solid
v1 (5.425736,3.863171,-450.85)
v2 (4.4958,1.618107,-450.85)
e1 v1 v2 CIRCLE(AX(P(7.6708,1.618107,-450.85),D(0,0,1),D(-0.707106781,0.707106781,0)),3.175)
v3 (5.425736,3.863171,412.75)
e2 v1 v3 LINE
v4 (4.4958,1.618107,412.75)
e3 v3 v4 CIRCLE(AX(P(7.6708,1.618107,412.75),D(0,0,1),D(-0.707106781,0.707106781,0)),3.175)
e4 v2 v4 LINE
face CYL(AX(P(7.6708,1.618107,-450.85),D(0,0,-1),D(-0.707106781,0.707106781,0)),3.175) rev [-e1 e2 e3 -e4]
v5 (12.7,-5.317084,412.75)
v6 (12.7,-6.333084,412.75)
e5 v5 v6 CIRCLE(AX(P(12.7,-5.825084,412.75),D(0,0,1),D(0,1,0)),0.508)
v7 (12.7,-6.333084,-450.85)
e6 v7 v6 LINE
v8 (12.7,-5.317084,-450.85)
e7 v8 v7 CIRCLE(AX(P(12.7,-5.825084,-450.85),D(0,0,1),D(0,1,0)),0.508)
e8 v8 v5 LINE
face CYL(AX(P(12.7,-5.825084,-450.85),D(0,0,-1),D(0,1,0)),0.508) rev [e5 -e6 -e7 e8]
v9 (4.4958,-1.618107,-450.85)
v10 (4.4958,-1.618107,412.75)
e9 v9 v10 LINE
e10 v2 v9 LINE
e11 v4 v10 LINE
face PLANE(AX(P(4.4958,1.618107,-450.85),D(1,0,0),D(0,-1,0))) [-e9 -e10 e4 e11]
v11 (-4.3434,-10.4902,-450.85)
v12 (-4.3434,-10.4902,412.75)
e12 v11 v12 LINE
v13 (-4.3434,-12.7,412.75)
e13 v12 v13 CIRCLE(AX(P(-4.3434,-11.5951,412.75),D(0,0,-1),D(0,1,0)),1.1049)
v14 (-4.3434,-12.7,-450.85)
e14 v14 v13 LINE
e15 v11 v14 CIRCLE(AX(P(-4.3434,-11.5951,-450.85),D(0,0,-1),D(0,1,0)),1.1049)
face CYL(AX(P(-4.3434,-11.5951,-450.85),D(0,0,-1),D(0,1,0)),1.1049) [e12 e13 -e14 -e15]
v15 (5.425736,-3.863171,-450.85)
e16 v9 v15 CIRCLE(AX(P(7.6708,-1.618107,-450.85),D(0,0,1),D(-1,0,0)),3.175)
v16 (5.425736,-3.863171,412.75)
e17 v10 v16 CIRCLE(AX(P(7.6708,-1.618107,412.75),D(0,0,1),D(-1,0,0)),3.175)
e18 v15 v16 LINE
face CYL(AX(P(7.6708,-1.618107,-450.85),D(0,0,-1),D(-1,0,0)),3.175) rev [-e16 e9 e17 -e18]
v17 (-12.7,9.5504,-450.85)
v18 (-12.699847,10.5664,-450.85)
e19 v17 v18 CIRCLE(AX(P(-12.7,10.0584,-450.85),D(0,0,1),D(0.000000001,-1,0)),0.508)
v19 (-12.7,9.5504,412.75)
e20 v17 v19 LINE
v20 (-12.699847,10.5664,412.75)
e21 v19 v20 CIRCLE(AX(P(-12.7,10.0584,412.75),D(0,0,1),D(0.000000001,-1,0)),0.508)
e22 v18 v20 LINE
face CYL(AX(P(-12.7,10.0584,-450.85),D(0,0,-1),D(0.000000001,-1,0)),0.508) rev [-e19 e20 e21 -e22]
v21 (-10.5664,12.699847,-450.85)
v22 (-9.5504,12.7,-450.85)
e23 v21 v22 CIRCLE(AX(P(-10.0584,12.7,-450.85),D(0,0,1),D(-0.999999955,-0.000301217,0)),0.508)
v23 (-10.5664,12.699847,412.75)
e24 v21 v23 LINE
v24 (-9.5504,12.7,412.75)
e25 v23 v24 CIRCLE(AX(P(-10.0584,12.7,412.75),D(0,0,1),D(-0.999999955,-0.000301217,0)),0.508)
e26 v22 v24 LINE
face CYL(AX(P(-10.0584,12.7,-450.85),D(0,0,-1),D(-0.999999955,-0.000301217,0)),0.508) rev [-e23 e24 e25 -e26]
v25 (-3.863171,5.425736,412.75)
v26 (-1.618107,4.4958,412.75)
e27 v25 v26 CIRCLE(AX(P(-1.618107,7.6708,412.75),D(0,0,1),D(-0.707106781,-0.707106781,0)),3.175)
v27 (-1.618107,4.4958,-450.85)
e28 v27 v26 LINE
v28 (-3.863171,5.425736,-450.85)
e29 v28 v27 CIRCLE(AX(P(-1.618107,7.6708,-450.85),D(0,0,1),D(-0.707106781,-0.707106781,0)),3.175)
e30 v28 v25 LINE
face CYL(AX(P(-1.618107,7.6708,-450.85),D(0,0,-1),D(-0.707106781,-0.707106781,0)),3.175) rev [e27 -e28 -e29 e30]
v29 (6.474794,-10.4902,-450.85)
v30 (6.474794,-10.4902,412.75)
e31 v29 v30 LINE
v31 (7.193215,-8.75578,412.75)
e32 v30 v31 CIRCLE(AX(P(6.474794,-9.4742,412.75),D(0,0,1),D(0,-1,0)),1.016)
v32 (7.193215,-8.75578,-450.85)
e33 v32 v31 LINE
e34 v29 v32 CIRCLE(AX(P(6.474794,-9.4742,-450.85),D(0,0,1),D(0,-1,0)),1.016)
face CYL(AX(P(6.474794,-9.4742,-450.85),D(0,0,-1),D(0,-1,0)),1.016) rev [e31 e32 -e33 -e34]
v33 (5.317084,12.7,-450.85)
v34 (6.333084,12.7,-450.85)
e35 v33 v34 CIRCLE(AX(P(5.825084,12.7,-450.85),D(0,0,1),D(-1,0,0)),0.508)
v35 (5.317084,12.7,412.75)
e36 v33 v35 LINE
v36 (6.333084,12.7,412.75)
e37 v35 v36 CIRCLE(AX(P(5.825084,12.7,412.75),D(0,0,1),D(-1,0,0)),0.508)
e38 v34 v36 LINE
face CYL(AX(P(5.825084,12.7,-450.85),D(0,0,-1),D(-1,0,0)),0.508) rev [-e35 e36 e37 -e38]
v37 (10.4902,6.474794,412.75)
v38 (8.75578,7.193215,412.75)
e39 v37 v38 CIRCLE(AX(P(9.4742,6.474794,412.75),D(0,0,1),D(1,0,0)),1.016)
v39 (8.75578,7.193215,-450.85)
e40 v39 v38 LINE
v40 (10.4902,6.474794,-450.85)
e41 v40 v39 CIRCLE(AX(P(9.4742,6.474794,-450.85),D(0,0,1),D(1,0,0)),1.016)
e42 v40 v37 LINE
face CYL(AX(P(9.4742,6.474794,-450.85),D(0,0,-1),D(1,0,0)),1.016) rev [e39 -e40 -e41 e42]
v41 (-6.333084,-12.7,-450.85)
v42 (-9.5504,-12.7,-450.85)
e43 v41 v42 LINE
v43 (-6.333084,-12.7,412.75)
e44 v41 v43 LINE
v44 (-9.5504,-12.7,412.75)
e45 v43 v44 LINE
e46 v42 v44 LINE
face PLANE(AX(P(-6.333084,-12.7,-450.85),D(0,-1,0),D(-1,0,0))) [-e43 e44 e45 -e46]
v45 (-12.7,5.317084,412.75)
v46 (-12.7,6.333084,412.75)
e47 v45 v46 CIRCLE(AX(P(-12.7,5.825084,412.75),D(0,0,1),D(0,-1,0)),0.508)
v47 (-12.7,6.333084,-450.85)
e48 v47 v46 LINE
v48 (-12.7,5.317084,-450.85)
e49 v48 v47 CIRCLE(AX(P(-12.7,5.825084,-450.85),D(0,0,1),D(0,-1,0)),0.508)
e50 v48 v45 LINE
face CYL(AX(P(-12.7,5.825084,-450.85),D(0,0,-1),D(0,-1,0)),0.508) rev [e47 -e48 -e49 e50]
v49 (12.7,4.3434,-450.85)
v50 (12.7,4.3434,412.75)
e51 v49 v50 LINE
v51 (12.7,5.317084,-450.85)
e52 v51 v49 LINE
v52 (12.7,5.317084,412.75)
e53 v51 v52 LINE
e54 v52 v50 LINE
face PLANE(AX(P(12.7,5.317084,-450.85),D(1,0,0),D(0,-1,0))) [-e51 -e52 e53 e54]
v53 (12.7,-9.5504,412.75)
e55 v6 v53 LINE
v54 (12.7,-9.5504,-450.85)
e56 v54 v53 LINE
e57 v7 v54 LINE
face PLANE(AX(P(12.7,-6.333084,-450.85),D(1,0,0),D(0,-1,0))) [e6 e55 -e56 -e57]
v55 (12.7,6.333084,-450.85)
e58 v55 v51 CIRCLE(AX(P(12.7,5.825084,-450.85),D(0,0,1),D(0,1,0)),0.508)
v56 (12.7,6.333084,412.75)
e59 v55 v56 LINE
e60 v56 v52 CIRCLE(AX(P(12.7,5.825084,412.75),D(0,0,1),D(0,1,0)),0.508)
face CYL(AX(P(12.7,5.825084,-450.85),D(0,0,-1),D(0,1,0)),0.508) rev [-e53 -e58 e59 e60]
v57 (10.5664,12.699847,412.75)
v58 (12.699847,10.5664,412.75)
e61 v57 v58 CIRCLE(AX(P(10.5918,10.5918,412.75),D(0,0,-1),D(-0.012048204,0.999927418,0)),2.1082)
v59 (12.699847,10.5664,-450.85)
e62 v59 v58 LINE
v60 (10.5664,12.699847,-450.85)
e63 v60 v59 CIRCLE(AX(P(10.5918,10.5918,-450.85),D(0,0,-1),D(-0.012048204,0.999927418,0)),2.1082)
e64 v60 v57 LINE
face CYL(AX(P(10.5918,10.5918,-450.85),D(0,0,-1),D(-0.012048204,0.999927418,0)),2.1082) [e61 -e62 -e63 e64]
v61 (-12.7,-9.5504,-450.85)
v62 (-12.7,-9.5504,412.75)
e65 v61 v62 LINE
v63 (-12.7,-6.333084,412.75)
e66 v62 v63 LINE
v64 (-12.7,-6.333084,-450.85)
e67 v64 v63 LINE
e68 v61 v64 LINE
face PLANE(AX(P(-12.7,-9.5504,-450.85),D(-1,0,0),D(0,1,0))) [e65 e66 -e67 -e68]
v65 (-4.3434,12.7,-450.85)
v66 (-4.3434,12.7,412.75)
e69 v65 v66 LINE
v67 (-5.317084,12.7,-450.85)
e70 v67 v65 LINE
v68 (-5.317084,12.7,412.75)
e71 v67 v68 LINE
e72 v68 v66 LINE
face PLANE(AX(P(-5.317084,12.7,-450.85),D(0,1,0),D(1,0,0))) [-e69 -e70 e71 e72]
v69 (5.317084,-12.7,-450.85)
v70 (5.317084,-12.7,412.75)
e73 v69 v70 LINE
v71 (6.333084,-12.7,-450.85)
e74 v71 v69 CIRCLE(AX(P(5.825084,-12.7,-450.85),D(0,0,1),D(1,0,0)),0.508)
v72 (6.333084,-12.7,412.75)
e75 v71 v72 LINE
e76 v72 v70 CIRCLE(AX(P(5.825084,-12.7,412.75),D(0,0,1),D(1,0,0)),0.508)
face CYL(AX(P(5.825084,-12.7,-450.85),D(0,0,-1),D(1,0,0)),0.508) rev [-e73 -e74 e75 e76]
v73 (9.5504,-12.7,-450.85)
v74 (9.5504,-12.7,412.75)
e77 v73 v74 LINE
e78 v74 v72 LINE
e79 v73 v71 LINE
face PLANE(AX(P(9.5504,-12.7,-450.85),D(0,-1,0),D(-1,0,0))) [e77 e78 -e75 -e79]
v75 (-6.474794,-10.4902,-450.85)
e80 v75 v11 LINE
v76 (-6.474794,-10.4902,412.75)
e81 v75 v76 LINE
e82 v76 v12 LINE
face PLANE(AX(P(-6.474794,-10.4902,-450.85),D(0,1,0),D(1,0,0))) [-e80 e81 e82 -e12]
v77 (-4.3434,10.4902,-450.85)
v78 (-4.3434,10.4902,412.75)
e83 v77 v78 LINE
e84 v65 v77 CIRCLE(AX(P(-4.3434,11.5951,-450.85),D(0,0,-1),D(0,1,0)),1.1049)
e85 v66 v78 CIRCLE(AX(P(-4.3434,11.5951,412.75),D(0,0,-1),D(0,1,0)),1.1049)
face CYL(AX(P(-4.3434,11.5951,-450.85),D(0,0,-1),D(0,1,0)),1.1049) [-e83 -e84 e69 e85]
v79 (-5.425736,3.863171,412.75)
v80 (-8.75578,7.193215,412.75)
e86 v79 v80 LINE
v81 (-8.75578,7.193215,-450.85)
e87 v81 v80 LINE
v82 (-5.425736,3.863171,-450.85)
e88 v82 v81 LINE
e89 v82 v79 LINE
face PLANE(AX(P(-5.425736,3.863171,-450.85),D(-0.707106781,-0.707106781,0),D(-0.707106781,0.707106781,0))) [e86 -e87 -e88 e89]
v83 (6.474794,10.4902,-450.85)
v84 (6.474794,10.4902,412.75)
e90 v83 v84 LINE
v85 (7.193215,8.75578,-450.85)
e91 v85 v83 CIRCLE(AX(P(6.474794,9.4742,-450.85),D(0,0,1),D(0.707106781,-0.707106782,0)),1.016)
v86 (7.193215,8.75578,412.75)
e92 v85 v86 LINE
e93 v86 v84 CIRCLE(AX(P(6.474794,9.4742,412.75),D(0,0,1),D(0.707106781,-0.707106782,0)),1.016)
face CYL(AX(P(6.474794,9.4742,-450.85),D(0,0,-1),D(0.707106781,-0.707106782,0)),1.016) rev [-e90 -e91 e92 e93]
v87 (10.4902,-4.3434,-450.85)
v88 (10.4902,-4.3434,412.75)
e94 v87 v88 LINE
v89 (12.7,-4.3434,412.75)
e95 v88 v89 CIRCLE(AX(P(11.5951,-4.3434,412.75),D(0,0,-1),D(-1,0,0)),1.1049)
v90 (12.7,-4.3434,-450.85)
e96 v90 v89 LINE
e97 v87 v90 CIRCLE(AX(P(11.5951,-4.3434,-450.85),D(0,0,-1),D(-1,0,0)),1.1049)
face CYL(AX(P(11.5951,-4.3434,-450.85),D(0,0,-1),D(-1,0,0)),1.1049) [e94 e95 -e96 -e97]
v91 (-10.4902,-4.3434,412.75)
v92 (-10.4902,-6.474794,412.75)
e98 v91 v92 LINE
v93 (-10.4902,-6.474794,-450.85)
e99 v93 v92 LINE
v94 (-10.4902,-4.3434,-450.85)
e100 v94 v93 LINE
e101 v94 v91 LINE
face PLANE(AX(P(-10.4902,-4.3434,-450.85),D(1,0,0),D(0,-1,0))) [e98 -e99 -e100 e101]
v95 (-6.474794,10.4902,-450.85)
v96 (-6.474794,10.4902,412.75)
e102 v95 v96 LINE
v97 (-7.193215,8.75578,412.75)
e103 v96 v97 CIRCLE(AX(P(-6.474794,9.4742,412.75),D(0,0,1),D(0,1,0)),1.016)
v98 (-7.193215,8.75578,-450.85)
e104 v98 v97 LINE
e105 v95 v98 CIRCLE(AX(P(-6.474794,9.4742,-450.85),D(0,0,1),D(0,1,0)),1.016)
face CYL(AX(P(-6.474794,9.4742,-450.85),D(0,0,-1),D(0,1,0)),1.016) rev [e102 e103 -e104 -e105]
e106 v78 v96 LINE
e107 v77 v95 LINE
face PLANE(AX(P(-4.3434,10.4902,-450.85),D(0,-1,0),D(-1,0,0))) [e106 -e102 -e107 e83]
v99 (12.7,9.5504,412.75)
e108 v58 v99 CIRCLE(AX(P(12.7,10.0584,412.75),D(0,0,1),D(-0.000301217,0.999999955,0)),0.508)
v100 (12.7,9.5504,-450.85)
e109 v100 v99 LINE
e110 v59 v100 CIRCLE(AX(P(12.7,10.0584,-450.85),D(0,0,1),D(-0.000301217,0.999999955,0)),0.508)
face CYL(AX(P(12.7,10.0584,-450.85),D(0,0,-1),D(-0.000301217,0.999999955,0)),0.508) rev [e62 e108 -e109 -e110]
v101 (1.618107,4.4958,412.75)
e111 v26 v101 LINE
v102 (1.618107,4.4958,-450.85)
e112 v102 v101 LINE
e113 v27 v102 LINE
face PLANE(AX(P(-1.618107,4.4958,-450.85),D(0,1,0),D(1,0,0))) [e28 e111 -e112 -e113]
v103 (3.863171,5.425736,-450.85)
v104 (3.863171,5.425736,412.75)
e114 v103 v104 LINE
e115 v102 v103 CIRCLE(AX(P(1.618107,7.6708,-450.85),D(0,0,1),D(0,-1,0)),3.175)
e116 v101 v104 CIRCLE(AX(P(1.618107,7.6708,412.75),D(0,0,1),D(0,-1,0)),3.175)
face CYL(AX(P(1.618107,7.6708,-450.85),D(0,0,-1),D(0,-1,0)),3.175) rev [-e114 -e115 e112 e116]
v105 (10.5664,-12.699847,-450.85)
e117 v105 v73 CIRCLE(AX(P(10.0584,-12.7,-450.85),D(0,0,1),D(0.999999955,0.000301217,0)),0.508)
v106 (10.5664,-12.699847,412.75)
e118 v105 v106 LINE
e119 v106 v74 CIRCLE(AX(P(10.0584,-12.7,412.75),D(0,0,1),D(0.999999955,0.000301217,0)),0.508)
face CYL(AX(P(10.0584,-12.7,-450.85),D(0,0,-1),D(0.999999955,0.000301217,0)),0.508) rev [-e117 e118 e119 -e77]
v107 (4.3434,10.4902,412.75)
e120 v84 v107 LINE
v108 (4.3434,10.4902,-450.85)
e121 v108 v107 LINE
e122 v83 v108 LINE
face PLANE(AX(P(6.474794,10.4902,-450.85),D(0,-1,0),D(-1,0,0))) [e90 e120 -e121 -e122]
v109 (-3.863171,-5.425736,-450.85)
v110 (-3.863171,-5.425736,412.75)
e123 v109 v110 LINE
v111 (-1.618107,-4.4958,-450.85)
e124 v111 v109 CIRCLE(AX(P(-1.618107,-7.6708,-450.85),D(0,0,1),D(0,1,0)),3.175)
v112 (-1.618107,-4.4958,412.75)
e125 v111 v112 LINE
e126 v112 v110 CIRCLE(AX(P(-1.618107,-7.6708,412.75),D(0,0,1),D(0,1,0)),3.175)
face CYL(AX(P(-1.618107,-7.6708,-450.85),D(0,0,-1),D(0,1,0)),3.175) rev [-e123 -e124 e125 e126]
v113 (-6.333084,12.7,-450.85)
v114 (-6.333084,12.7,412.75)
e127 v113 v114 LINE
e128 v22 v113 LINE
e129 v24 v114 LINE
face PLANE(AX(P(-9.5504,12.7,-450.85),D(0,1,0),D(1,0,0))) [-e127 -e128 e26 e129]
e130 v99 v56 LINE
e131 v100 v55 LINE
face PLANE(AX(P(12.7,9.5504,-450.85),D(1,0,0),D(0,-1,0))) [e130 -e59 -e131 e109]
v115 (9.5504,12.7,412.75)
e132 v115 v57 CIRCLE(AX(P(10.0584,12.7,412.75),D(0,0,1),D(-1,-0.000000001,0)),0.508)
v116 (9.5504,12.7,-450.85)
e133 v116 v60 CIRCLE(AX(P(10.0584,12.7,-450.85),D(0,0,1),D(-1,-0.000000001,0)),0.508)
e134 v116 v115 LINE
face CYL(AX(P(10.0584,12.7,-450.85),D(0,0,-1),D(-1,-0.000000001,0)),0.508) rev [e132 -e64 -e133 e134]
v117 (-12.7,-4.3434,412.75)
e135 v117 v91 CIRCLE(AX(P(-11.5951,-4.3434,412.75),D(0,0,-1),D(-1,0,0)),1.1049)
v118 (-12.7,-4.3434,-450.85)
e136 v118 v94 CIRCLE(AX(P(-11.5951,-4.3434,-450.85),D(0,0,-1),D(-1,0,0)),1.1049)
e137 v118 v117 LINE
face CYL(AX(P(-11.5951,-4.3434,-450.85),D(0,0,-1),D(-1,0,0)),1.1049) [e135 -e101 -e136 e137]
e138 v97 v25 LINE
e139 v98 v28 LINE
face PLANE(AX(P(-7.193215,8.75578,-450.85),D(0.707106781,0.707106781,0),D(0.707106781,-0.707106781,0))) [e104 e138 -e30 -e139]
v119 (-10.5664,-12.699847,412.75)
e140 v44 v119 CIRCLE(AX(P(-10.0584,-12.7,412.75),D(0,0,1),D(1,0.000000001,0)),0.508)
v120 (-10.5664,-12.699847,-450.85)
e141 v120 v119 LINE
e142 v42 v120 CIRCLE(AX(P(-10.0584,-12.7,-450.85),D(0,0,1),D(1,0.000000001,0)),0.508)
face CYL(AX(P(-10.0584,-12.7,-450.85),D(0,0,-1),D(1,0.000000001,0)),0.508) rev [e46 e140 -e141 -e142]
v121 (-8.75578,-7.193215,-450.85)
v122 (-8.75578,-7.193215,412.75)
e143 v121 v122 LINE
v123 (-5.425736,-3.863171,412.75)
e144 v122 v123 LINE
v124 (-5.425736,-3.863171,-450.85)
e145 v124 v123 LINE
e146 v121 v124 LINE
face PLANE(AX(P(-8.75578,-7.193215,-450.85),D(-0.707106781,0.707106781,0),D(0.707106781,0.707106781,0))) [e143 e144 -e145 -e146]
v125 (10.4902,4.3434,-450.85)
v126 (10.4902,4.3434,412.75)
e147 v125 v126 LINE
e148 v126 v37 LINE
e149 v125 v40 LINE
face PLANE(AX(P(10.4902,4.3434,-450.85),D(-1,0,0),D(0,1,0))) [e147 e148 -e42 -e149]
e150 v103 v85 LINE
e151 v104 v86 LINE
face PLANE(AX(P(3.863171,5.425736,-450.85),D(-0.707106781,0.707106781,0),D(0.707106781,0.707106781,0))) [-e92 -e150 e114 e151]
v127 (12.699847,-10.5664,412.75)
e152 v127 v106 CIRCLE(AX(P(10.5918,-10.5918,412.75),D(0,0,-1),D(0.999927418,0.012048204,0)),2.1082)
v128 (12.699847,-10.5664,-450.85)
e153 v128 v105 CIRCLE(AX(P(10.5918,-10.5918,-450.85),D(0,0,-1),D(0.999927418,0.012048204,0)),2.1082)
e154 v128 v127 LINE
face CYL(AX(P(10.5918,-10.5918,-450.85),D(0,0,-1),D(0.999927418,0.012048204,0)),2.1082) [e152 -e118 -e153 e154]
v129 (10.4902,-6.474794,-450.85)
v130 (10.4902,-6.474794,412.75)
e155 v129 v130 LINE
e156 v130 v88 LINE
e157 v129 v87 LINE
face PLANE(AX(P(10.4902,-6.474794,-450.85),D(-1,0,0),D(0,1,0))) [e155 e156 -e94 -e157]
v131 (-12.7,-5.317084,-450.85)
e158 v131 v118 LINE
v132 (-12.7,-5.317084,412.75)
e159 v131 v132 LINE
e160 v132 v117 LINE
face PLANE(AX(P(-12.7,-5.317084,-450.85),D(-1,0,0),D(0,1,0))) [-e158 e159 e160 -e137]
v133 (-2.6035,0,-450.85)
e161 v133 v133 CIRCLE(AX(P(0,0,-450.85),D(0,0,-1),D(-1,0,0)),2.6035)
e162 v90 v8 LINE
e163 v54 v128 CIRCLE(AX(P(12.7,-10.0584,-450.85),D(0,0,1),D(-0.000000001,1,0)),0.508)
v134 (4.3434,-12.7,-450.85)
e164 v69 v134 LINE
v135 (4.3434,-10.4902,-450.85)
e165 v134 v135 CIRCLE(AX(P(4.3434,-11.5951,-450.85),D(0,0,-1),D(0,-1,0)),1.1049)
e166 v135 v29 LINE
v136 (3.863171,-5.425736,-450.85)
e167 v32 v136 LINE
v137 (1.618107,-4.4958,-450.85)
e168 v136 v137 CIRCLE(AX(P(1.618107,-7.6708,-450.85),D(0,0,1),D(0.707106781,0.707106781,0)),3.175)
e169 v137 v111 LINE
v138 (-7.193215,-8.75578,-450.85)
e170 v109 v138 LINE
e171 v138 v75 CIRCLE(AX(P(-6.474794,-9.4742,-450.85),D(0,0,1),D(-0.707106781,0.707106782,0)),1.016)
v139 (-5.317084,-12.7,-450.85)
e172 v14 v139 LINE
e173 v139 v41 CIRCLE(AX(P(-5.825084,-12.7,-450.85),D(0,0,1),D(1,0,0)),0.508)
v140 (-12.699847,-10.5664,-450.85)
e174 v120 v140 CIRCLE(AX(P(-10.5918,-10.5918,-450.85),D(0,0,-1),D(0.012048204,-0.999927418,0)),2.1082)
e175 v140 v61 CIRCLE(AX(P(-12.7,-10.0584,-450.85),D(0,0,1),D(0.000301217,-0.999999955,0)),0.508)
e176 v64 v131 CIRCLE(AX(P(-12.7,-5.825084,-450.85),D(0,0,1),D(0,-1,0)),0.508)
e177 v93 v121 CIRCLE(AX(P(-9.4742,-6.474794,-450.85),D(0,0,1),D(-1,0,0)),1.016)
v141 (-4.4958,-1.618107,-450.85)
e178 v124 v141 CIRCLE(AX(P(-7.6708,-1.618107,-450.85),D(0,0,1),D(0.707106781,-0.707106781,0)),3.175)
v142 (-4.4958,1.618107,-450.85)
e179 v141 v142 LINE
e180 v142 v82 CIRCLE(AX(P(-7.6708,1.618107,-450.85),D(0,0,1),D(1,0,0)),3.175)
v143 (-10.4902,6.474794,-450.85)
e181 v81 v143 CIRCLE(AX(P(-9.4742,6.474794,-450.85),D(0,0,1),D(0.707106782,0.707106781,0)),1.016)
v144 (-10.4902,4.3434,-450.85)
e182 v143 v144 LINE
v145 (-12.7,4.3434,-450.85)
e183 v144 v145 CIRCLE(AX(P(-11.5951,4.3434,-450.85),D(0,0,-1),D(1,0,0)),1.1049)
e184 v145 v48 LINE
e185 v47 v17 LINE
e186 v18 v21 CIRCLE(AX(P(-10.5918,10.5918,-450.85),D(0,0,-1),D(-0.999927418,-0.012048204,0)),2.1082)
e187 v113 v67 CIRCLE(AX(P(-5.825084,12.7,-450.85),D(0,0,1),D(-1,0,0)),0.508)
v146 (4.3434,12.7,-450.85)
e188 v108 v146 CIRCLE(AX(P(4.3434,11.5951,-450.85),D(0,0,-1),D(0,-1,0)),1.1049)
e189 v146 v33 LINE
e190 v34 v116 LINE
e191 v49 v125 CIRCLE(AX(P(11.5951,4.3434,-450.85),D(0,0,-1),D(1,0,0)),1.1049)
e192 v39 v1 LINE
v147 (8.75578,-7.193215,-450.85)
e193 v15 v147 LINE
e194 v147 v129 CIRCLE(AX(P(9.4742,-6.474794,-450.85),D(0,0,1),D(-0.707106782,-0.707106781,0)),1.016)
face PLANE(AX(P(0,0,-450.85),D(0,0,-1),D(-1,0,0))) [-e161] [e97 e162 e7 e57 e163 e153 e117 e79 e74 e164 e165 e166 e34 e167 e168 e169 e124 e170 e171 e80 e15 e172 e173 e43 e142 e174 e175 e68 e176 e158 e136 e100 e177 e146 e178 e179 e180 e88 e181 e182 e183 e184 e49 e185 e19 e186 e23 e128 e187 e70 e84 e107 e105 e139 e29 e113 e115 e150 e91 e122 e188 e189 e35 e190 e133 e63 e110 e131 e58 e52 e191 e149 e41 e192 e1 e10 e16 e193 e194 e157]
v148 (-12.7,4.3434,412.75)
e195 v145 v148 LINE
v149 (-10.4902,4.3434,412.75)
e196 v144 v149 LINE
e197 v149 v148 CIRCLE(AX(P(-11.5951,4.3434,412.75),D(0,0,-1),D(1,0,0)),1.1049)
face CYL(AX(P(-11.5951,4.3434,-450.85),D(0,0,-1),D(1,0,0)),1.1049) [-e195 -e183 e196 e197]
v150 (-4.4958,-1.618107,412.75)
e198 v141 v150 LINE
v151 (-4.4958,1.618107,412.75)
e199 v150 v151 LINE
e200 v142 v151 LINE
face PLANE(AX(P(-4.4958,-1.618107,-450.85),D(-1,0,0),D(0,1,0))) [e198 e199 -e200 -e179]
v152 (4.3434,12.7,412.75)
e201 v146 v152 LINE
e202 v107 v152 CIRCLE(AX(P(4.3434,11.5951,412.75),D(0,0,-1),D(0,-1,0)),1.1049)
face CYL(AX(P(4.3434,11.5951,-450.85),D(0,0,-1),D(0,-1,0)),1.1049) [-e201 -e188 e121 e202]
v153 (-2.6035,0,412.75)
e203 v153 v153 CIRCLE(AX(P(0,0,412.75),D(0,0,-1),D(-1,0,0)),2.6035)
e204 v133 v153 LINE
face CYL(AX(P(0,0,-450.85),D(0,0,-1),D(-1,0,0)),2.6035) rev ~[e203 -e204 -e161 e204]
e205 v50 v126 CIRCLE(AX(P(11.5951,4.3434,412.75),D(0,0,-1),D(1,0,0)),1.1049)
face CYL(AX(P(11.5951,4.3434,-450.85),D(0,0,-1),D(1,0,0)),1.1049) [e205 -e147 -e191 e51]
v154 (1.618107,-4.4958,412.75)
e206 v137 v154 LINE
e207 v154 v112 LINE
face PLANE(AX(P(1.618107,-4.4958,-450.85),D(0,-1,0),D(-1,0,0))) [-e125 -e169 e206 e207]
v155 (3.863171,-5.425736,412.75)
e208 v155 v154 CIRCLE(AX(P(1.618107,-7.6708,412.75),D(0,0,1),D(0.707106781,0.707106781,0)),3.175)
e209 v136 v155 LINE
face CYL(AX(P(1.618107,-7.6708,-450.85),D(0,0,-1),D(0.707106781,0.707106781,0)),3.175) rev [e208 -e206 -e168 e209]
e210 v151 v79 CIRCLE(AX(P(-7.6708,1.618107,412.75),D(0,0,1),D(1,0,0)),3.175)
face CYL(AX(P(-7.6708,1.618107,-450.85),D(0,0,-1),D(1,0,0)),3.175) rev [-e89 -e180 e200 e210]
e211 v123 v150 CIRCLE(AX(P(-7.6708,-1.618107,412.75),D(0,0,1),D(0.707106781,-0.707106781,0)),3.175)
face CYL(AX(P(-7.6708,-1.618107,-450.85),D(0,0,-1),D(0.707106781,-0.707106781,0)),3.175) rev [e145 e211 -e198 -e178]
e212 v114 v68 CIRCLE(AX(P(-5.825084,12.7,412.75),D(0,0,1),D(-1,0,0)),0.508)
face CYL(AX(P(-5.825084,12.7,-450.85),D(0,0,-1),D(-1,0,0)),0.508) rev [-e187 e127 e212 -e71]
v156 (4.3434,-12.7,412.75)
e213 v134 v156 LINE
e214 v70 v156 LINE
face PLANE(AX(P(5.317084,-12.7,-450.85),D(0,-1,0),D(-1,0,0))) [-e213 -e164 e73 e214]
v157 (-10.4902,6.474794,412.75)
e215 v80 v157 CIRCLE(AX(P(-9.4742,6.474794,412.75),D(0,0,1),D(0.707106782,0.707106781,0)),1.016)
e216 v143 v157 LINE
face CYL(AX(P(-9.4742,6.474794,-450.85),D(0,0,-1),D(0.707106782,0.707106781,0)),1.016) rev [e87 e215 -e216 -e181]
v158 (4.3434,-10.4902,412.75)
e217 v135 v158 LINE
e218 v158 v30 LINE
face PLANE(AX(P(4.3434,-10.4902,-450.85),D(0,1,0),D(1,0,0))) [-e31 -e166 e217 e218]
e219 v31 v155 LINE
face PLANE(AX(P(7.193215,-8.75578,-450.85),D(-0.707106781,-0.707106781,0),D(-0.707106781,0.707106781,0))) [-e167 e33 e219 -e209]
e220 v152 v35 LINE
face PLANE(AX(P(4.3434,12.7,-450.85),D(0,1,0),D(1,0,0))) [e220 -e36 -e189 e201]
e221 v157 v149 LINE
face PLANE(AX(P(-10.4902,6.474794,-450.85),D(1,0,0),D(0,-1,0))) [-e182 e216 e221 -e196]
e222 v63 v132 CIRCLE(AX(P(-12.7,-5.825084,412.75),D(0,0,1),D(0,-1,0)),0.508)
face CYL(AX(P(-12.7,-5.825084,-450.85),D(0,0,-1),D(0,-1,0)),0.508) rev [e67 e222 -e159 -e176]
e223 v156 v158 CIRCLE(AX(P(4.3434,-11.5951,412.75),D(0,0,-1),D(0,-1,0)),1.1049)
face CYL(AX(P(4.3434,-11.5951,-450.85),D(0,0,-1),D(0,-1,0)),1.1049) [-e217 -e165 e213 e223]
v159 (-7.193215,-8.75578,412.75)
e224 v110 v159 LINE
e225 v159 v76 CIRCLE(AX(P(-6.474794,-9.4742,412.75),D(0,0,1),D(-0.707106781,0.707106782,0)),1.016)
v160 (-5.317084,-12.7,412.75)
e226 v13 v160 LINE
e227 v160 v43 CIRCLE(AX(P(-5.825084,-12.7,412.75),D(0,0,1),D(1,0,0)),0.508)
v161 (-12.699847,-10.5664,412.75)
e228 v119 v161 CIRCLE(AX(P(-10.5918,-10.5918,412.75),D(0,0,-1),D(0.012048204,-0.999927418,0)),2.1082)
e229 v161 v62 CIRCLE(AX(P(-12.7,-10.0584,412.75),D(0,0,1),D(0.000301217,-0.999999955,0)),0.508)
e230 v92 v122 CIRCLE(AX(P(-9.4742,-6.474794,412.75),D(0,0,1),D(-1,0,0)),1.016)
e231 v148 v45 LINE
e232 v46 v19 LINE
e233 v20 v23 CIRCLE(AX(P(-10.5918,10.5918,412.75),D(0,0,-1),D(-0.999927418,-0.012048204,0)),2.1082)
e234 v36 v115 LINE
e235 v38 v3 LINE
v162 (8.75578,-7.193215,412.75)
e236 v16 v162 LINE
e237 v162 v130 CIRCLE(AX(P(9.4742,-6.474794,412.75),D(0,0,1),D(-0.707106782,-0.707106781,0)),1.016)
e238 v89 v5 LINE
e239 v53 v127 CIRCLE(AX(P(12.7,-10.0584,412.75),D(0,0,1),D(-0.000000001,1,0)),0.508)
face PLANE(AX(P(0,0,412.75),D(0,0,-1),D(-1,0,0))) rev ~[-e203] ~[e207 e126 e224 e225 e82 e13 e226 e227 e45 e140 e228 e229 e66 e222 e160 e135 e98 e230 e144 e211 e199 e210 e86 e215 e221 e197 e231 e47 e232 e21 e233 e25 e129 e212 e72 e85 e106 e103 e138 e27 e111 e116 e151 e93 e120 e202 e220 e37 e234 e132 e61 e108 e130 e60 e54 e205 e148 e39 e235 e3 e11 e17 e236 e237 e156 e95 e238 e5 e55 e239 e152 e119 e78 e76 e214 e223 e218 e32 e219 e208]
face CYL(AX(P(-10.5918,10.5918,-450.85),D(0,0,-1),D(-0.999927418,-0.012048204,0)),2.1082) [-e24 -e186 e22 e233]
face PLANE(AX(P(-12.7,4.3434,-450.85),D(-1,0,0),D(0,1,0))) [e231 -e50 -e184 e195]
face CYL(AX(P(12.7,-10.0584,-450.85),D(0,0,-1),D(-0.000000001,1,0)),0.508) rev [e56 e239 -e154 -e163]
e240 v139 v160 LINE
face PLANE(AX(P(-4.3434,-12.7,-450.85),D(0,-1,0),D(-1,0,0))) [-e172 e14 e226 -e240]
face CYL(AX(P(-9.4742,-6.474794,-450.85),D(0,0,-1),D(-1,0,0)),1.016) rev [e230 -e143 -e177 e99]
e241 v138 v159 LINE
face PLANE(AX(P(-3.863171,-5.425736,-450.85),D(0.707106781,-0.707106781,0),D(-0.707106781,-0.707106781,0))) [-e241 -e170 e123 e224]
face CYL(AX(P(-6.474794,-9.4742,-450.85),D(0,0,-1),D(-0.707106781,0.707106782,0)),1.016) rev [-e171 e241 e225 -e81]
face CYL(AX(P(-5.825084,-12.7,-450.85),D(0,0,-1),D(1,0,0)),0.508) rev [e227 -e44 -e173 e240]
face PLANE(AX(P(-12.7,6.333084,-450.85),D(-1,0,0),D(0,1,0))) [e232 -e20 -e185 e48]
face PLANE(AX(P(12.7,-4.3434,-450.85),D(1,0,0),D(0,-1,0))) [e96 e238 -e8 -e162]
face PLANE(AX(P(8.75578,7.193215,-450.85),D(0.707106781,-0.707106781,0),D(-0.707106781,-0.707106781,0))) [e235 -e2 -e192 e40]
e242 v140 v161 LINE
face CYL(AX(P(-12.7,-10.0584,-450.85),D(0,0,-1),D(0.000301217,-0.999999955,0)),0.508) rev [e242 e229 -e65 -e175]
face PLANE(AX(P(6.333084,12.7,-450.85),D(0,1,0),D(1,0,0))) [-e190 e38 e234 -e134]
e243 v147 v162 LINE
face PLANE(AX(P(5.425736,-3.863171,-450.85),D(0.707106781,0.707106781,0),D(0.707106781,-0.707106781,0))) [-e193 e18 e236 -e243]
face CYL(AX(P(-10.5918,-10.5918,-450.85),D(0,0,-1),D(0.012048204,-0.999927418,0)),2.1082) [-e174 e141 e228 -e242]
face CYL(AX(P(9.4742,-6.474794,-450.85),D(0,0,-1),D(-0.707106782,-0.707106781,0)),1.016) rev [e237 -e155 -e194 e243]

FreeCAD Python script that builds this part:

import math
import FreeCAD as App
import Part
import Sketcher
Q = App.Units.Quantity

doc = App.newDocument("Part")
body = doc.addObject("PartDesign::Body", "Body")

sketch1 = body.newObject("Sketcher::SketchObject", "Sketch")
sketch1.AttachmentSupport = (doc.getObject("XY_Plane"), [""])
sketch1.MapMode = "FlatFace"
sketch1.AttachmentOffset = App.Placement(App.Vector(0, 0, -17.75 * 25.4), App.Rotation())
sketch1.addGeometry(Part.LineSegment(App.Vector(-12.7, -9.6, 0), App.Vector(-12.7, -6.3, 0)), False)
sketch1.addGeometry(Part.ArcOfCircle(Part.Circle(App.Vector(-12.7, -5.8, 0), App.Vector(0, 0, 1), 0.5), math.radians(-90), math.radians(90)), False)
sketch1.addGeometry(Part.LineSegment(App.Vector(-12.7, -5.3, 0), App.Vector(-12.7, -4.3, 0)), False)
sketch1.addGeometry(Part.ArcOfCircle(Part.Circle(App.Vector(-11.6, -4.3, 0), App.Vector(0, 0, 1), 1.1), math.radians(0), math.radians(180)), False)
sketch1.addGeometry(Part.LineSegment(App.Vector(-10.5, -4.3, 0), App.Vector(-10.5, -6.5, 0)), False)
sketch1.addGeometry(Part.ArcOfCircle(Part.Circle(App.Vector(-9.5, -6.5, 0), App.Vector(0, 0, 1), 1), math.radians(180), math.radians(315)), False)
sketch1.addGeometry(Part.LineSegment(App.Vector(-8.8, -7.2, 0), App.Vector(-5.4, -3.9, 0)), False)
sketch1.addGeometry(Part.ArcOfCircle(Part.Circle(App.Vector(-7.7, -1.6, 0), App.Vector(0, 0, 1), 3.2), math.radians(-45), math.radians(0)), False)
sketch1.addGeometry(Part.LineSegment(App.Vector(-4.5, -1.6, 0), App.Vector(-4.5, 1.6, 0)), False)
sketch1.addGeometry(Part.ArcOfCircle(Part.Circle(App.Vector(-7.7, 1.6, 0), App.Vector(0, 0, 1), 3.2), math.radians(0), math.radians(45)), False)
sketch1.addGeometry(Part.LineSegment(App.Vector(-5.4, 3.9, 0), App.Vector(-8.8, 7.2, 0)), False)
sketch1.addGeometry(Part.ArcOfCircle(Part.Circle(App.Vector(-9.5, 6.5, 0), App.Vector(0, 0, 1), 1), math.radians(45), math.radians(180)), False)
sketch1.addGeometry(Part.LineSegment(App.Vector(-10.5, 6.5, 0), App.Vector(-10.5, 4.3, 0)), False)
sketch1.addGeometry(Part.ArcOfCircle(Part.Circle(App.Vector(-11.6, 4.3, 0), App.Vector(0, 0, 1), 1.1), math.radians(180), math.radians(360)), False)
sketch1.addGeometry(Part.LineSegment(App.Vector(-12.7, 4.3, 0), App.Vector(-12.7, 5.3, 0)), False)
sketch1.addGeometry(Part.ArcOfCircle(Part.Circle(App.Vector(-12.7, 5.8, 0), App.Vector(0, 0, 1), 0.5), math.radians(-90), math.radians(90)), False)
sketch1.addGeometry(Part.LineSegment(App.Vector(-12.7, 6.3, 0), App.Vector(-12.7, 9.6, 0)), False)
sketch1.addGeometry(Part.ArcOfCircle(Part.Circle(App.Vector(-12.7, 10.1, 0), App.Vector(0, 0, 1), 0.5), math.radians(-90), math.radians(90)), False)
sketch1.addGeometry(Part.ArcOfCircle(Part.Circle(App.Vector(-10.6, 10.6, 0), App.Vector(0, 0, 1), 2.1), math.radians(89), math.radians(181)), False)
sketch1.addGeometry(Part.ArcOfCircle(Part.Circle(App.Vector(-10.1, 12.7, 0), App.Vector(0, 0, 1), 0.5), math.radians(-180), math.radians(0)), False)
sketch1.addGeometry(Part.LineSegment(App.Vector(-9.6, 12.7, 0), App.Vector(-6.3, 12.7, 0)), False)
sketch1.addGeometry(Part.ArcOfCircle(Part.Circle(App.Vector(-5.8, 12.7, 0), App.Vector(0, 0, 1), 0.5), math.radians(180), math.radians(360)), False)
sketch1.addGeometry(Part.LineSegment(App.Vector(-5.3, 12.7, 0), App.Vector(-4.3, 12.7, 0)), False)
sketch1.addGeometry(Part.ArcOfCircle(Part.Circle(App.Vector(-4.3, 11.6, 0), App.Vector(0, 0, 1), 1.1), math.radians(-90), math.radians(90)), False)
sketch1.addGeometry(Part.LineSegment(App.Vector(-4.3, 10.5, 0), App.Vector(-6.5, 10.5, 0)), False)
sketch1.addGeometry(Part.ArcOfCircle(Part.Circle(App.Vector(-6.5, 9.5, 0), App.Vector(0, 0, 1), 1), math.radians(90), math.radians(225)), False)
sketch1.addGeometry(Part.LineSegment(App.Vector(-7.2, 8.8, 0), App.Vector(-3.9, 5.4, 0)), False)
sketch1.addGeometry(Part.ArcOfCircle(Part.Circle(App.Vector(-1.6, 7.7, 0), App.Vector(0, 0, 1), 3.2), math.radians(-135), math.radians(-90)), False)
sketch1.addGeometry(Part.LineSegment(App.Vector(-1.6, 4.5, 0), App.Vector(1.6, 4.5, 0)), False)
sketch1.addGeometry(Part.ArcOfCircle(Part.Circle(App.Vector(1.6, 7.7, 0), App.Vector(0, 0, 1), 3.2), math.radians(-90), math.radians(-45)), False)
sketch1.addGeometry(Part.LineSegment(App.Vector(3.9, 5.4, 0), App.Vector(7.2, 8.8, 0)), False)
sketch1.addGeometry(Part.ArcOfCircle(Part.Circle(App.Vector(6.5, 9.5, 0), App.Vector(0, 0, 1), 1), math.radians(-45), math.radians(90)), False)
sketch1.addGeometry(Part.LineSegment(App.Vector(6.5, 10.5, 0), App.Vector(4.3, 10.5, 0)), False)
sketch1.addGeometry(Part.ArcOfCircle(Part.Circle(App.Vector(4.3, 11.6, 0), App.Vector(0, 0, 1), 1.1), math.radians(90), math.radians(270)), False)
sketch1.addGeometry(Part.LineSegment(App.Vector(4.3, 12.7, 0), App.Vector(5.3, 12.7, 0)), False)
sketch1.addGeometry(Part.ArcOfCircle(Part.Circle(App.Vector(5.8, 12.7, 0), App.Vector(0, 0, 1), 0.5), math.radians(180), math.radians(360)), False)
sketch1.addGeometry(Part.LineSegment(App.Vector(6.3, 12.7, 0), App.Vector(9.6, 12.7, 0)), False)
sketch1.addGeometry(Part.ArcOfCircle(Part.Circle(App.Vector(10.1, 12.7, 0), App.Vector(0, 0, 1), 0.5), math.radians(180), math.radians(360)), False)
sketch1.addGeometry(Part.ArcOfCircle(Part.Circle(App.Vector(10.6, 10.6, 0), App.Vector(0, 0, 1), 2.1), math.radians(-1), math.radians(91)), False)
sketch1.addGeometry(Part.ArcOfCircle(Part.Circle(App.Vector(12.7, 10.1, 0), App.Vector(0, 0, 1), 0.5), math.radians(90), math.radians(270)), False)
sketch1.addGeometry(Part.LineSegment(App.Vector(12.7, 9.6, 0), App.Vector(12.7, 6.3, 0)), False)
sketch1.addGeometry(Part.ArcOfCircle(Part.Circle(App.Vector(12.7, 5.8, 0), App.Vector(0, 0, 1), 0.5), math.radians(90), math.radians(270)), False)
sketch1.addGeometry(Part.LineSegment(App.Vector(12.7, 5.3, 0), App.Vector(12.7, 4.3, 0)), False)
sketch1.addGeometry(Part.ArcOfCircle(Part.Circle(App.Vector(11.6, 4.3, 0), App.Vector(0, 0, 1), 1.1), math.radians(180), math.radians(360)), False)
sketch1.addGeometry(Part.LineSegment(App.Vector(10.5, 4.3, 0), App.Vector(10.5, 6.5, 0)), False)
sketch1.addGeometry(Part.ArcOfCircle(Part.Circle(App.Vector(9.5, 6.5, 0), App.Vector(0, 0, 1), 1), math.radians(0), math.radians(135)), False)
sketch1.addGeometry(Part.LineSegment(App.Vector(8.8, 7.2, 0), App.Vector(5.4, 3.9, 0)), False)
sketch1.addGeometry(Part.ArcOfCircle(Part.Circle(App.Vector(7.7, 1.6, 0), App.Vector(0, 0, 1), 3.2), math.radians(135), math.radians(180)), False)
sketch1.addGeometry(Part.LineSegment(App.Vector(4.5, 1.6, 0), App.Vector(4.5, -1.6, 0)), False)
sketch1.addGeometry(Part.ArcOfCircle(Part.Circle(App.Vector(7.7, -1.6, 0), App.Vector(0, 0, 1), 3.2), math.radians(180), math.radians(225)), False)
sketch1.addGeometry(Part.LineSegment(App.Vector(5.4, -3.9, 0), App.Vector(8.8, -7.2, 0)), False)
sketch1.addGeometry(Part.ArcOfCircle(Part.Circle(App.Vector(9.5, -6.5, 0), App.Vector(0, 0, 1), 1), math.radians(-135), math.radians(0)), False)
sketch1.addGeometry(Part.LineSegment(App.Vector(10.5, -6.5, 0), App.Vector(10.5, -4.3, 0)), False)
sketch1.addGeometry(Part.ArcOfCircle(Part.Circle(App.Vector(11.6, -4.3, 0), App.Vector(0, 0, 1), 1.1), math.radians(0), math.radians(180)), False)
sketch1.addGeometry(Part.LineSegment(App.Vector(12.7, -4.3, 0), App.Vector(12.7, -5.3, 0)), False)
sketch1.addGeometry(Part.ArcOfCircle(Part.Circle(App.Vector(12.7, -5.8, 0), App.Vector(0, 0, 1), 0.5), math.radians(90), math.radians(270)), False)
sketch1.addGeometry(Part.LineSegment(App.Vector(12.7, -6.3, 0), App.Vector(12.7, -9.6, 0)), False)
sketch1.addGeometry(Part.ArcOfCircle(Part.Circle(App.Vector(12.7, -10.1, 0), App.Vector(0, 0, 1), 0.5), math.radians(90), math.radians(270)), False)
sketch1.addGeometry(Part.ArcOfCircle(Part.Circle(App.Vector(10.6, -10.6, 0), App.Vector(0, 0, 1), 2.1), math.radians(-91), math.radians(1)), False)
sketch1.addGeometry(Part.ArcOfCircle(Part.Circle(App.Vector(10.1, -12.7, 0), App.Vector(0, 0, 1), 0.5), math.radians(0), math.radians(180)), False)
sketch1.addGeometry(Part.LineSegment(App.Vector(9.6, -12.7, 0), App.Vector(6.3, -12.7, 0)), False)
sketch1.addGeometry(Part.ArcOfCircle(Part.Circle(App.Vector(5.8, -12.7, 0), App.Vector(0, 0, 1), 0.5), math.radians(0), math.radians(180)), False)
sketch1.addGeometry(Part.LineSegment(App.Vector(5.3, -12.7, 0), App.Vector(4.3, -12.7, 0)), False)
sketch1.addGeometry(Part.ArcOfCircle(Part.Circle(App.Vector(4.3, -11.6, 0), App.Vector(0, 0, 1), 1.1), math.radians(90), math.radians(270)), False)
sketch1.addGeometry(Part.LineSegment(App.Vector(4.3, -10.5, 0), App.Vector(6.5, -10.5, 0)), False)
sketch1.addGeometry(Part.ArcOfCircle(Part.Circle(App.Vector(6.5, -9.5, 0), App.Vector(0, 0, 1), 1), math.radians(-90), math.radians(45)), False)
sketch1.addGeometry(Part.LineSegment(App.Vector(7.2, -8.8, 0), App.Vector(3.9, -5.4, 0)), False)
sketch1.addGeometry(Part.ArcOfCircle(Part.Circle(App.Vector(1.6, -7.7, 0), App.Vector(0, 0, 1), 3.2), math.radians(45), math.radians(90)), False)
sketch1.addGeometry(Part.LineSegment(App.Vector(1.6, -4.5, 0), App.Vector(-1.6, -4.5, 0)), False)
sketch1.addGeometry(Part.ArcOfCircle(Part.Circle(App.Vector(-1.6, -7.7, 0), App.Vector(0, 0, 1), 3.2), math.radians(90), math.radians(135)), False)
sketch1.addGeometry(Part.LineSegment(App.Vector(-3.9, -5.4, 0), App.Vector(-7.2, -8.8, 0)), False)
sketch1.addGeometry(Part.ArcOfCircle(Part.Circle(App.Vector(-6.5, -9.5, 0), App.Vector(0, 0, 1), 1), math.radians(135), math.radians(270)), False)
sketch1.addGeometry(Part.LineSegment(App.Vector(-6.5, -10.5, 0), App.Vector(-4.3, -10.5, 0)), False)
sketch1.addGeometry(Part.ArcOfCircle(Part.Circle(App.Vector(-4.3, -11.6, 0), App.Vector(0, 0, 1), 1.1), math.radians(-90), math.radians(90)), False)
sketch1.addGeometry(Part.LineSegment(App.Vector(-4.3, -12.7, 0), App.Vector(-5.3, -12.7, 0)), False)
sketch1.addGeometry(Part.ArcOfCircle(Part.Circle(App.Vector(-5.8, -12.7, 0), App.Vector(0, 0, 1), 0.5), math.radians(0), math.radians(180)), False)
sketch1.addGeometry(Part.LineSegment(App.Vector(-6.3, -12.7, 0), App.Vector(-9.6, -12.7, 0)), False)
sketch1.addGeometry(Part.ArcOfCircle(Part.Circle(App.Vector(-10.1, -12.7, 0), App.Vector(0, 0, 1), 0.5), math.radians(0), math.radians(180)), False)
sketch1.addGeometry(Part.ArcOfCircle(Part.Circle(App.Vector(-10.6, -10.6, 0), App.Vector(0, 0, 1), 2.1), math.radians(179), math.radians(271)), False)
sketch1.addGeometry(Part.ArcOfCircle(Part.Circle(App.Vector(-12.7, -10.1, 0), App.Vector(0, 0, 1), 0.5), math.radians(-90), math.radians(90)), False)
sketch1.addGeometry(Part.Circle(App.Vector(0, 0, 0), App.Vector(0, 0, 1), 2.6), False)
sketch1.addConstraint(Sketcher.Constraint("Coincident", 0, 2, 1, 1))
sketch1.addConstraint(Sketcher.Constraint("Coincident", 1, 2, 2, 1))
sketch1.addConstraint(Sketcher.Constraint("Tangent", 2, 2, 3, 2))
sketch1.addConstraint(Sketcher.Constraint("Tangent", 3, 1, 4, 1))
sketch1.addConstraint(Sketcher.Constraint("Tangent", 4, 2, 5, 1))
sketch1.addConstraint(Sketcher.Constraint("Tangent", 5, 2, 6, 1))
sketch1.addConstraint(Sketcher.Constraint("Tangent", 6, 2, 7, 1))
sketch1.addConstraint(Sketcher.Constraint("Tangent", 7, 2, 8, 1))
sketch1.addConstraint(Sketcher.Constraint("Tangent", 8, 2, 9, 1))
sketch1.addConstraint(Sketcher.Constraint("Tangent", 9, 2, 10, 1))
sketch1.addConstraint(Sketcher.Constraint("Tangent", 10, 2, 11, 1))
sketch1.addConstraint(Sketcher.Constraint("Tangent", 11, 2, 12, 1))
sketch1.addConstraint(Sketcher.Constraint("Tangent", 12, 2, 13, 2))
sketch1.addConstraint(Sketcher.Constraint("Tangent", 13, 1, 14, 1))
sketch1.addConstraint(Sketcher.Constraint("Coincident", 14, 2, 15, 1))
sketch1.addConstraint(Sketcher.Constraint("Coincident", 15, 2, 16, 1))
sketch1.addConstraint(Sketcher.Constraint("Coincident", 16, 2, 17, 1))
sketch1.addConstraint(Sketcher.Constraint("Coincident", 17, 2, 18, 2))
sketch1.addConstraint(Sketcher.Constraint("Coincident", 18, 1, 19, 1))
sketch1.addConstraint(Sketcher.Constraint("Coincident", 19, 2, 20, 1))
sketch1.addConstraint(Sketcher.Constraint("Coincident", 20, 2, 21, 1))
sketch1.addConstraint(Sketcher.Constraint("Coincident", 21, 2, 22, 1))
sketch1.addConstraint(Sketcher.Constraint("Tangent", 22, 2, 23, 2))
sketch1.addConstraint(Sketcher.Constraint("Tangent", 23, 1, 24, 1))
sketch1.addConstraint(Sketcher.Constraint("Tangent", 24, 2, 25, 1))
sketch1.addConstraint(Sketcher.Constraint("Tangent", 25, 2, 26, 1))
sketch1.addConstraint(Sketcher.Constraint("Tangent", 26, 2, 27, 1))
sketch1.addConstraint(Sketcher.Constraint("Tangent", 27, 2, 28, 1))
sketch1.addConstraint(Sketcher.Constraint("Tangent", 28, 2, 29, 1))
sketch1.addConstraint(Sketcher.Constraint("Tangent", 29, 2, 30, 1))
sketch1.addConstraint(Sketcher.Constraint("Tangent", 30, 2, 31, 1))
sketch1.addConstraint(Sketcher.Constraint("Tangent", 31, 2, 32, 1))
sketch1.addConstraint(Sketcher.Constraint("Tangent", 32, 2, 33, 2))
sketch1.addConstraint(Sketcher.Constraint("Tangent", 33, 1, 34, 1))
sketch1.addConstraint(Sketcher.Constraint("Coincident", 34, 2, 35, 1))
sketch1.addConstraint(Sketcher.Constraint("Coincident", 35, 2, 36, 1))
sketch1.addConstraint(Sketcher.Constraint("Coincident", 36, 2, 37, 1))
sketch1.addConstraint(Sketcher.Constraint("Coincident", 37, 2, 38, 2))
sketch1.addConstraint(Sketcher.Constraint("Coincident", 38, 1, 39, 1))
sketch1.addConstraint(Sketcher.Constraint("Coincident", 39, 2, 40, 1))
sketch1.addConstraint(Sketcher.Constraint("Coincident", 40, 2, 41, 1))
sketch1.addConstraint(Sketcher.Constraint("Coincident", 41, 2, 42, 1))
sketch1.addConstraint(Sketcher.Constraint("Tangent", 42, 2, 43, 2))
sketch1.addConstraint(Sketcher.Constraint("Tangent", 43, 1, 44, 1))
sketch1.addConstraint(Sketcher.Constraint("Tangent", 44, 2, 45, 1))
sketch1.addConstraint(Sketcher.Constraint("Tangent", 45, 2, 46, 1))
sketch1.addConstraint(Sketcher.Constraint("Tangent", 46, 2, 47, 1))
sketch1.addConstraint(Sketcher.Constraint("Tangent", 47, 2, 48, 1))
sketch1.addConstraint(Sketcher.Constraint("Tangent", 48, 2, 49, 1))
sketch1.addConstraint(Sketcher.Constraint("Tangent", 49, 2, 50, 1))
sketch1.addConstraint(Sketcher.Constraint("Tangent", 50, 2, 51, 1))
sketch1.addConstraint(Sketcher.Constraint("Tangent", 51, 2, 52, 1))
sketch1.addConstraint(Sketcher.Constraint("Tangent", 52, 2, 53, 2))
sketch1.addConstraint(Sketcher.Constraint("Tangent", 53, 1, 54, 1))
sketch1.addConstraint(Sketcher.Constraint("Coincident", 54, 2, 55, 1))
sketch1.addConstraint(Sketcher.Constraint("Coincident", 55, 2, 56, 1))
sketch1.addConstraint(Sketcher.Constraint("Coincident", 56, 2, 57, 1))
sketch1.addConstraint(Sketcher.Constraint("Coincident", 57, 2, 58, 2))
sketch1.addConstraint(Sketcher.Constraint("Coincident", 58, 1, 59, 1))
sketch1.addConstraint(Sketcher.Constraint("Coincident", 59, 2, 60, 1))
sketch1.addConstraint(Sketcher.Constraint("Coincident", 60, 2, 61, 1))
sketch1.addConstraint(Sketcher.Constraint("Coincident", 61, 2, 62, 1))
sketch1.addConstraint(Sketcher.Constraint("Tangent", 62, 2, 63, 2))
sketch1.addConstraint(Sketcher.Constraint("Tangent", 63, 1, 64, 1))
sketch1.addConstraint(Sketcher.Constraint("Tangent", 64, 2, 65, 1))
sketch1.addConstraint(Sketcher.Constraint("Tangent", 65, 2, 66, 1))
sketch1.addConstraint(Sketcher.Constraint("Tangent", 66, 2, 67, 1))
sketch1.addConstraint(Sketcher.Constraint("Tangent", 67, 2, 68, 1))
sketch1.addConstraint(Sketcher.Constraint("Tangent", 68, 2, 69, 1))
sketch1.addConstraint(Sketcher.Constraint("Tangent", 69, 2, 70, 1))
sketch1.addConstraint(Sketcher.Constraint("Tangent", 70, 2, 71, 1))
sketch1.addConstraint(Sketcher.Constraint("Tangent", 71, 2, 72, 1))
sketch1.addConstraint(Sketcher.Constraint("Tangent", 72, 2, 73, 2))
sketch1.addConstraint(Sketcher.Constraint("Tangent", 73, 1, 74, 1))
sketch1.addConstraint(Sketcher.Constraint("Coincident", 74, 2, 75, 1))
sketch1.addConstraint(Sketcher.Constraint("Coincident", 75, 2, 76, 1))
sketch1.addConstraint(Sketcher.Constraint("Coincident", 76, 2, 77, 1))
sketch1.addConstraint(Sketcher.Constraint("Coincident", 77, 2, 78, 2))
sketch1.addConstraint(Sketcher.Constraint("Coincident", 78, 1, 79, 1))
sketch1.addConstraint(Sketcher.Constraint("Coincident", 79, 2, 0, 1))
sketch1.addConstraint(Sketcher.Constraint("Vertical", 0))
sketch1.addConstraint(Sketcher.Constraint("Vertical", 2))
sketch1.addConstraint(Sketcher.Constraint("Vertical", 4))
sketch1.addConstraint(Sketcher.Constraint("Vertical", 8))
sketch1.addConstraint(Sketcher.Constraint("Vertical", 12))
sketch1.addConstraint(Sketcher.Constraint("Vertical", 14))
sketch1.addConstraint(Sketcher.Constraint("Vertical", 16))
sketch1.addConstraint(Sketcher.Constraint("Horizontal", 20))
sketch1.addConstraint(Sketcher.Constraint("Horizontal", 22))
sketch1.addConstraint(Sketcher.Constraint("Horizontal", 24))
sketch1.addConstraint(Sketcher.Constraint("Horizontal", 28))
sketch1.addConstraint(Sketcher.Constraint("Horizontal", 32))
sketch1.addConstraint(Sketcher.Constraint("Horizontal", 34))
sketch1.addConstraint(Sketcher.Constraint("Horizontal", 36))
sketch1.addConstraint(Sketcher.Constraint("Vertical", 40))
sketch1.addConstraint(Sketcher.Constraint("Vertical", 42))
sketch1.addConstraint(Sketcher.Constraint("Vertical", 44))
sketch1.addConstraint(Sketcher.Constraint("Vertical", 48))
sketch1.addConstraint(Sketcher.Constraint("Vertical", 52))
sketch1.addConstraint(Sketcher.Constraint("Vertical", 54))
sketch1.addConstraint(Sketcher.Constraint("Vertical", 56))
sketch1.addConstraint(Sketcher.Constraint("Horizontal", 60))
sketch1.addConstraint(Sketcher.Constraint("Horizontal", 62))
sketch1.addConstraint(Sketcher.Constraint("Horizontal", 64))
sketch1.addConstraint(Sketcher.Constraint("Horizontal", 68))
sketch1.addConstraint(Sketcher.Constraint("Horizontal", 72))
sketch1.addConstraint(Sketcher.Constraint("Horizontal", 74))
sketch1.addConstraint(Sketcher.Constraint("Horizontal", 76))
sketch1.addConstraint(Sketcher.Constraint("Coincident", 80, 3, -1, 1))
sketch1.addConstraint(Sketcher.Constraint("Equal", 7, 9))
sketch1.addConstraint(Sketcher.Constraint("Equal", 5, 11))
sketch1.addConstraint(Sketcher.Constraint("Equal", 3, 13))
sketch1.addConstraint(Sketcher.Constraint("Equal", 1, 15))
sketch1.addConstraint(Sketcher.Constraint("Equal", 15, 17))
sketch1.addConstraint(Sketcher.Constraint("Equal", 17, 19))
sketch1.addConstraint(Sketcher.Constraint("Equal", 19, 21))
sketch1.addConstraint(Sketcher.Constraint("Equal", 13, 23))
sketch1.addConstraint(Sketcher.Constraint("Equal", 11, 25))
sketch1.addConstraint(Sketcher.Constraint("Equal", 9, 27))
sketch1.addConstraint(Sketcher.Constraint("Equal", 27, 29))
sketch1.addConstraint(Sketcher.Constraint("Equal", 25, 31))
sketch1.addConstraint(Sketcher.Constraint("Equal", 23, 33))
sketch1.addConstraint(Sketcher.Constraint("Equal", 21, 35))
sketch1.addConstraint(Sketcher.Constraint("Equal", 35, 37))
sketch1.addConstraint(Sketcher.Constraint("Equal", 18, 38))
sketch1.addConstraint(Sketcher.Constraint("Equal", 37, 39))
sketch1.addConstraint(Sketcher.Constraint("Equal", 39, 41))
sketch1.addConstraint(Sketcher.Constraint("Equal", 33, 43))
sketch1.addConstraint(Sketcher.Constraint("Equal", 31, 45))
sketch1.addConstraint(Sketcher.Constraint("Equal", 29, 47))
sketch1.addConstraint(Sketcher.Constraint("Equal", 47, 49))
sketch1.addConstraint(Sketcher.Constraint("Equal", 45, 51))
sketch1.addConstraint(Sketcher.Constraint("Equal", 43, 53))
sketch1.addConstraint(Sketcher.Constraint("Equal", 41, 55))
sketch1.addConstraint(Sketcher.Constraint("Equal", 55, 57))
sketch1.addConstraint(Sketcher.Constraint("Equal", 38, 58))
sketch1.addConstraint(Sketcher.Constraint("Equal", 57, 59))
sketch1.addConstraint(Sketcher.Constraint("Equal", 59, 61))
sketch1.addConstraint(Sketcher.Constraint("Equal", 53, 63))
sketch1.addConstraint(Sketcher.Constraint("Equal", 51, 65))
sketch1.addConstraint(Sketcher.Constraint("Equal", 49, 67))
sketch1.addConstraint(Sketcher.Constraint("Equal", 67, 69))
sketch1.addConstraint(Sketcher.Constraint("Equal", 65, 71))
sketch1.addConstraint(Sketcher.Constraint("Equal", 63, 73))
sketch1.addConstraint(Sketcher.Constraint("Equal", 61, 75))
sketch1.addConstraint(Sketcher.Constraint("Equal", 75, 77))
sketch1.addConstraint(Sketcher.Constraint("Equal", 58, 78))
sketch1.addConstraint(Sketcher.Constraint("Equal", 77, 79))
sketch1.addConstraint(Sketcher.Constraint("Symmetric", 1, 3, 41, 3, -1, 1))
sketch1.addConstraint(Sketcher.Constraint("Symmetric", 3, 3, 43, 3, -1, 1))
sketch1.addConstraint(Sketcher.Constraint("Symmetric", 7, 3, 47, 3, -1, 1))
sketch1.addConstraint(Sketcher.Constraint("Symmetric", 11, 3, 51, 3, -1, 1))
sketch1.addConstraint(Sketcher.Constraint("Symmetric", 15, 3, 55, 3, -1, 1))
sketch1.addConstraint(Sketcher.Constraint("Symmetric", 17, 3, 57, 3, -1, 1))
sketch1.addConstraint(Sketcher.Constraint("Symmetric", 18, 3, 58, 3, -1, 1))
sketch1.addConstraint(Sketcher.Constraint("Symmetric", 19, 3, 59, 3, -1, 1))
sketch1.addConstraint(Sketcher.Constraint("Symmetric", 21, 3, 61, 3, -1, 1))
sketch1.addConstraint(Sketcher.Constraint("Symmetric", 23, 3, 63, 3, -1, 1))
sketch1.addConstraint(Sketcher.Constraint("Symmetric", 27, 3, 67, 3, -1, 1))
sketch1.addConstraint(Sketcher.Constraint("Symmetric", 31, 3, 71, 3, -1, 1))
sketch1.addConstraint(Sketcher.Constraint("Symmetric", 35, 3, 75, 3, -1, 1))
sketch1.addConstraint(Sketcher.Constraint("Symmetric", 37, 3, 77, 3, -1, 1))
sketch1.addConstraint(Sketcher.Constraint("Symmetric", 38, 3, 78, 3, -1, 1))
sketch1.addConstraint(Sketcher.Constraint("Symmetric", 39, 3, 79, 3, -1, 1))
sketch1.addConstraint(Sketcher.Constraint("Symmetric", 25, 3, 31, 3, -2))
sketch1.addConstraint(Sketcher.Constraint("Symmetric", 21, 3, 35, 3, -2))
sketch1.addConstraint(Sketcher.Constraint("Symmetric", 19, 3, 37, 3, -2))
sketch1.addConstraint(Sketcher.Constraint("Symmetric", 18, 3, 38, 3, -2))
sketch1.addConstraint(Sketcher.Constraint("Symmetric", 17, 3, 39, 3, -2))
sketch1.addConstraint(Sketcher.Constraint("Symmetric", 15, 3, 41, 3, -2))
sketch1.addConstraint(Sketcher.Constraint("Symmetric", 13, 3, 43, 3, -2))
sketch1.addConstraint(Sketcher.Constraint("Symmetric", 10, 2, 45, 2, -2))
sketch1.addConstraint(Sketcher.Constraint("Symmetric", 6, 2, 49, 2, -2))
sketch1.addConstraint(Sketcher.Constraint("Symmetric", 66, 2, 69, 2, -2))
sketch1.addConstraint(Sketcher.Constraint("Perpendicular", 6, 10))
sketch1.addConstraint(Sketcher.Constraint("Parallel", 10, 26))
sketch1.addConstraint(Sketcher.Constraint("Perpendicular", 26, 30))
sketch1.addConstraint(Sketcher.Constraint("Horizontal", 19, 3, 21, 3))
sketch1.addConstraint(Sketcher.Constraint("Horizontal", 3, 3, 53, 3))
sketch1.addConstraint(Sketcher.Constraint("Horizontal", 37, 3, 19, 2))
sketch1.addConstraint(Sketcher.Constraint("Horizontal", 20, 2, 21, 2))
sketch1.addConstraint(Sketcher.Constraint("Horizontal", 34, 2, 35, 2))
sketch1.addConstraint(Sketcher.Constraint("Horizontal", 77, 3, 59, 2))
sketch1.addConstraint(Sketcher.Constraint("Horizontal", 74, 2, 75, 2))
sketch1.addConstraint(Sketcher.Constraint("Vertical", 15, 3, 17, 3))
sketch1.addConstraint(Sketcher.Constraint("Vertical", 33, 3, 63, 3))
sketch1.addConstraint(Sketcher.Constraint("Vertical", 23, 3, 73, 3))
sketch1.addConstraint(Sketcher.Constraint("Vertical", 79, 3, 0, 2))
sketch1.addConstraint(Sketcher.Constraint("Vertical", 0, 2, 1, 2))
sketch1.addConstraint(Sketcher.Constraint("Vertical", 14, 2, 15, 2))
sketch1.addConstraint(Sketcher.Constraint("Vertical", 57, 3, 39, 2))
sketch1.addConstraint(Sketcher.Constraint("Vertical", 54, 2, 55, 2))
sketch1.addConstraint(Sketcher.Constraint("Equal", 76, 0))
sketch1.addConstraint(Sketcher.Constraint("Equal", 74, 2))
sketch1.addConstraint(Sketcher.Constraint("Equal", 72, 4))
sketch1.addConstraint(Sketcher.Constraint("Equal", 68, 8))
sketch1.addConstraint(Sketcher.Constraint("Equal", 10, 26))
sketch1.addConstraint(Sketcher.Constraint("Radius", 1, Q("0.02 in")))
sketch1.addConstraint(Sketcher.Constraint("Radius", 5, Q("0.04 in")))
sketch1.addConstraint(Sketcher.Constraint("Diameter", 80, Q("0.205 in")))
sketch1.addConstraint(Sketcher.Constraint("Radius", 7, Q("0.125 in")))
sketch1.addConstraint(Sketcher.Constraint("Radius", 18, Q("0.083 in")))
sketch1.addConstraint(Sketcher.Constraint("DistanceX", 1, 3, -1, 1, Q("0.5 in")))
sketch1.addConstraint(Sketcher.Constraint("DistanceY", -1, 1, 19, 3, Q("0.5 in")))
sketch1.addConstraint(Sketcher.Constraint("Radius", 3, Q("0.0435 in")))
sketch1.addConstraint(Sketcher.Constraint("DistanceY", 3, 3, -1, 1, Q("0.171 in")))
sketch1.addConstraint(Sketcher.Constraint("DistanceX", 7, 3, -1, 1, Q("0.302 in")))
sketch1.addConstraint(Sketcher.Constraint("DistanceY", -1, 1, 17, 3, Q("0.396 in")))
sketch1.addConstraint(Sketcher.Constraint("DistanceX", 18, 3, -1, 1, Q("0.417 in")))
sketch1.addConstraint(Sketcher.Constraint("DistanceY", -1, 1, 18, 3, Q("0.417 in")))
sketch1.addConstraint(Sketcher.Constraint("DistanceX", 20, 1, 20, 2, Q("3.217316 mm")))
sketch1.addConstraint(Sketcher.Constraint("DistanceX", 24, 2, 24, 1, Q("2.131394 mm")))
pad1 = body.newObject("PartDesign::Pad", "Pad")
pad1.Profile = sketch1
pad1.Length = Q("34 in")

doc.recompute()
